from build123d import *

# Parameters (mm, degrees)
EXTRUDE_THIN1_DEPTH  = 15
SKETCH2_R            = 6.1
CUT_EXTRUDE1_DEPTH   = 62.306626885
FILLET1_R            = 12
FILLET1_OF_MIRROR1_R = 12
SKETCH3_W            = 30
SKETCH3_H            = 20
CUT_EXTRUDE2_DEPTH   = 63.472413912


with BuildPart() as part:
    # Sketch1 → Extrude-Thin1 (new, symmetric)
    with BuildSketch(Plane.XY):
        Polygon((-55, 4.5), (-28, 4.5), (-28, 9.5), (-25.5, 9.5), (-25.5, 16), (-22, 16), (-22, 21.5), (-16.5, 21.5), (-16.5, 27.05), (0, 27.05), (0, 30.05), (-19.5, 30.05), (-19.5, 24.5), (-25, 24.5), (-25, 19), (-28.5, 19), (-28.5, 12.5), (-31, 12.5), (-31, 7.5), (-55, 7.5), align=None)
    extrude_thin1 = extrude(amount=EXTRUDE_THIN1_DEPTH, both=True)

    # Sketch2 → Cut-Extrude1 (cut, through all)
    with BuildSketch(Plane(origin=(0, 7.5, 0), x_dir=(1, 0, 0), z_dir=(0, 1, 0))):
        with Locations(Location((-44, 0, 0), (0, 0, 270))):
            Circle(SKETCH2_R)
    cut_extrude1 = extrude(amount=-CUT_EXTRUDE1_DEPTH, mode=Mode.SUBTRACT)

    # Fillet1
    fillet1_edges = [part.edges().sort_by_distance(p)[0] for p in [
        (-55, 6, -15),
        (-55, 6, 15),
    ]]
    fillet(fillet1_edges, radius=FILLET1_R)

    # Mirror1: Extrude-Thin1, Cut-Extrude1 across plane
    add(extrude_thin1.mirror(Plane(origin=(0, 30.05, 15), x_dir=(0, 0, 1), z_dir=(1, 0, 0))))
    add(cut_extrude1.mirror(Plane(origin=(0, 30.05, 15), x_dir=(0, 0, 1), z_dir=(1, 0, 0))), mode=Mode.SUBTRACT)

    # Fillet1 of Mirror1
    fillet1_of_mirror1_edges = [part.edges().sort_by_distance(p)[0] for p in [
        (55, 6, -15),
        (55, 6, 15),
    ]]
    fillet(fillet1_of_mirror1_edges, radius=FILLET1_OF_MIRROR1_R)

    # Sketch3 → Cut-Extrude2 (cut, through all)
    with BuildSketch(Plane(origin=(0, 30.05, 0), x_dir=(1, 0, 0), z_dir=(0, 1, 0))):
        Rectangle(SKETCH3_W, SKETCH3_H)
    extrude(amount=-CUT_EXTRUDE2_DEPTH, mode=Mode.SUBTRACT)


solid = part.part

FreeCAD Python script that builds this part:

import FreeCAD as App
import Part
import Sketcher

V = App.Vector
Q = App.Units.Quantity


def edges_at(feature, points):
    """Names of the edges that pass closest to the given points."""
    edges = feature.Shape.Edges
    near = lambda p: min(range(len(edges)), key=lambda i: edges[i].distToShape(Part.Vertex(*p))[0])
    return sorted({f"Edge{near(p) + 1}" for p in points})

doc = App.newDocument("Part")
body = doc.addObject("PartDesign::Body", "Body")

# Sketch on XY plane
sketch1 = body.newObject("Sketcher::SketchObject", "Sketch")
sketch1.AttachmentSupport = (doc.getObject("XY_Plane"), [""])
sketch1.MapMode = "FlatFace"
sketch1.addGeometry([
    Part.LineSegment(V(-55, 4.5, 0), V(-28, 4.5, 0)),  # 0
    Part.LineSegment(V(-28, 4.5, 0), V(-28, 9.5, 0)),  # 1
    Part.LineSegment(V(-28, 9.5, 0), V(-25.5, 9.5, 0)),  # 2
    Part.LineSegment(V(-25.5, 9.5, 0), V(-25.5, 16, 0)),  # 3
    Part.LineSegment(V(-25.5, 16, 0), V(-22, 16, 0)),  # 4
    Part.LineSegment(V(-22, 16, 0), V(-22, 21.5, 0)),  # 5
    Part.LineSegment(V(-22, 21.5, 0), V(-16.5, 21.5, 0)),  # 6
    Part.LineSegment(V(-16.5, 21.5, 0), V(-16.5, 27.1, 0)),  # 7
    Part.LineSegment(V(-16.5, 27.1, 0), V(0, 27.1, 0)),  # 8
    Part.LineSegment(V(0, 27.1, 0), V(0, 30.1, 0)),  # 9
    Part.LineSegment(V(0, 30.1, 0), V(-19.5, 30.1, 0)),  # 10
    Part.LineSegment(V(-19.5, 30.1, 0), V(-19.5, 24.5, 0)),  # 11
    Part.LineSegment(V(-19.5, 24.5, 0), V(-25, 24.5, 0)),  # 12
    Part.LineSegment(V(-25, 24.5, 0), V(-25, 19, 0)),  # 13
    Part.LineSegment(V(-25, 19, 0), V(-28.5, 19, 0)),  # 14
    Part.LineSegment(V(-28.5, 19, 0), V(-28.5, 12.5, 0)),  # 15
    Part.LineSegment(V(-28.5, 12.5, 0), V(-31, 12.5, 0)),  # 16
    Part.LineSegment(V(-31, 12.5, 0), V(-31, 7.5, 0)),  # 17
    Part.LineSegment(V(-31, 7.5, 0), V(-55, 7.5, 0)),  # 18
    Part.LineSegment(V(-55, 7.5, 0), V(-55, 4.5, 0)),  # 19
], False)
sketch1.addConstraint([
    Sketcher.Constraint("Coincident", 0, 2, 1, 1),
    Sketcher.Constraint("Coincident", 1, 2, 2, 1),
    Sketcher.Constraint("Coincident", 2, 2, 3, 1),
    Sketcher.Constraint("Coincident", 3, 2, 4, 1),
    Sketcher.Constraint("Coincident", 4, 2, 5, 1),
    Sketcher.Constraint("Coincident", 5, 2, 6, 1),
    Sketcher.Constraint("Coincident", 6, 2, 7, 1),
    Sketcher.Constraint("Coincident", 7, 2, 8, 1),
    Sketcher.Constraint("Coincident", 8, 2, 9, 1),
    Sketcher.Constraint("Coincident", 9, 2, 10, 1),
    Sketcher.Constraint("Coincident", 10, 2, 11, 1),
    Sketcher.Constraint("Coincident", 11, 2, 12, 1),
    Sketcher.Constraint("Coincident", 12, 2, 13, 1),
    Sketcher.Constraint("Coincident", 13, 2, 14, 1),
    Sketcher.Constraint("Coincident", 14, 2, 15, 1),
    Sketcher.Constraint("Coincident", 15, 2, 16, 1),
    Sketcher.Constraint("Coincident", 16, 2, 17, 1),
    Sketcher.Constraint("Coincident", 17, 2, 18, 1),
    Sketcher.Constraint("Coincident", 18, 2, 19, 1),
    Sketcher.Constraint("Coincident", 19, 2, 0, 1),
    Sketcher.Constraint("Horizontal", 0),
    Sketcher.Constraint("Vertical", 1),
    Sketcher.Constraint("Horizontal", 2),
    Sketcher.Constraint("Vertical", 3),
    Sketcher.Constraint("Horizontal", 4),
    Sketcher.Constraint("Vertical", 5),
    Sketcher.Constraint("Horizontal", 6),
    Sketcher.Constraint("Vertical", 7),
    Sketcher.Constraint("Horizontal", 8),
    Sketcher.Constraint("Vertical", 9),
    Sketcher.Constraint("Horizontal", 10),
    Sketcher.Constraint("Vertical", 11),
    Sketcher.Constraint("Horizontal", 12),
    Sketcher.Constraint("Vertical", 13),
    Sketcher.Constraint("Horizontal", 14),
    Sketcher.Constraint("Vertical", 15),
    Sketcher.Constraint("Horizontal", 16),
    Sketcher.Constraint("Vertical", 17),
    Sketcher.Constraint("Horizontal", 18),
    Sketcher.Constraint("Vertical", 19),
    Sketcher.Constraint("PointOnObject", 8, 2, -2),
    Sketcher.Constraint("Equal", 6, 12),
    Sketcher.Constraint("Equal", 4, 14),
    Sketcher.Constraint("Equal", 2, 16),
    Sketcher.Constraint("Equal", 12, 5),
    Sketcher.Constraint("Equal", 7, 11),
    Sketcher.Constraint("Equal", 5, 13),
    Sketcher.Constraint("Equal", 3, 15),
    Sketcher.Constraint("Equal", 1, 17),
    Sketcher.Constraint("DistanceX", 0, 1, 0, 2, Q("27 mm")),
    Sketcher.Constraint("DistanceX", 18, 2, 18, 1, Q("24 mm")),
    Sketcher.Constraint("DistanceY", 1, 1, 1, 2, Q("5 mm")),
    Sketcher.Constraint("DistanceY", 9, 1, 9, 2, Q("3 mm")),
    Sketcher.Constraint("DistanceX", 2, 1, 2, 2, Q("2.5 mm")),
    Sketcher.Constraint("DistanceX", 4, 1, 4, 2, Q("3.5 mm")),
    Sketcher.Constraint("DistanceX", 6, 1, 6, 2, Q("5.5 mm")),
    Sketcher.Constraint("DistanceX", 8, 1, 8, 2, Q("16.5 mm")),
    Sketcher.Constraint("DistanceY", 3, 1, 3, 2, Q("6.5 mm")),
    Sketcher.Constraint("DistanceY", -1, 1, 3, 2, Q("16 mm")),
    Sketcher.Constraint("DistanceY", 7, 1, 7, 2, Q("5.55 mm")),
])
pad1 = body.newObject("PartDesign::Pad", "Pad")
pad1.Profile = sketch1
pad1.Length = 30
pad1.Midplane = True

# Sketch on XZ plane
sketch2 = body.newObject("Sketcher::SketchObject", "Sketch001")
sketch2.AttachmentSupport = (doc.getObject("XZ_Plane"), [""])
sketch2.MapMode = "FlatFace"
sketch2.AttachmentOffset = App.Placement(V(0, 0, -7.5), App.Rotation())
sketch2.addGeometry(Part.Circle(V(-44, 0, 0), V(0, 0, 1), 6), False)
sketch2.addConstraint([
    Sketcher.Constraint("PointOnObject", 0, 3, -1),
    Sketcher.Constraint("Diameter", 0, Q("12.2 mm")),
    Sketcher.Constraint("DistanceX", 0, 3, -1, 1, Q("44 mm")),
])
pocket1 = body.newObject("PartDesign::Pocket", "Pocket")
pocket1.Profile = sketch2
pocket1.Type = "ThroughAll"
pocket1.Reversed = True
doc.recompute()

fillet = body.newObject("PartDesign::Fillet", "Fillet")
fillet.Base = (pocket1, edges_at(pocket1, [(-55, 6, -15), (-55, 6, 15)]))
fillet.Radius = 12
doc.recompute()

mirrored = body.newObject("PartDesign::Mirrored", "Mirrored")
mirrored.Originals = [pad1, pocket1]
mirrored.MirrorPlane = (doc.getObject("YZ_Plane"), [""])
body.Tip = mirrored
doc.recompute()

fillet2 = body.newObject("PartDesign::Fillet", "Fillet001")
fillet2.Base = (mirrored, edges_at(mirrored, [(55, 6, -15), (55, 6, 15)]))
fillet2.Radius = 12

# Sketch on XZ plane
sketch3 = body.newObject("Sketcher::SketchObject", "Sketch002")
sketch3.AttachmentSupport = (doc.getObject("XZ_Plane"), [""])
sketch3.MapMode = "FlatFace"
sketch3.AttachmentOffset = App.Placement(V(0, 0, -30.05), App.Rotation())
sketch3.addGeometry([
    Part.LineSegment(V(-15, -10, 0), V(-15, 10, 0)),
    Part.LineSegment(V(-15, 10, 0), V(15, 10, 0)),
    Part.LineSegment(V(15, 10, 0), V(15, -10, 0)),
    Part.LineSegment(V(15, -10, 0), V(-15, -10, 0)),
], False)
sketch3.addConstraint([
    Sketcher.Constraint("Coincident", 0, 2, 1, 1),
    Sketcher.Constraint("Coincident", 1, 2, 2, 1),
    Sketcher.Constraint("Coincident", 2, 2, 3, 1),
    Sketcher.Constraint("Coincident", 3, 2, 0, 1),
    Sketcher.Constraint("Vertical", 0),
    Sketcher.Constraint("Horizontal", 1),
    Sketcher.Constraint("Vertical", 2),
    Sketcher.Constraint("Horizontal", 3),
    Sketcher.Constraint("Symmetric", 0, 2, 2, 2, -1, 1),
    Sketcher.Constraint("DistanceX", 1, 1, 1, 2, Q("30 mm")),
    Sketcher.Constraint("DistanceY", 0, 1, 0, 2, Q("20 mm")),
])
pocket2 = body.newObject("PartDesign::Pocket", "Pocket001")
pocket2.Profile = sketch3
pocket2.Type = "ThroughAll"
pocket2.Reversed = True

doc.recompute()
